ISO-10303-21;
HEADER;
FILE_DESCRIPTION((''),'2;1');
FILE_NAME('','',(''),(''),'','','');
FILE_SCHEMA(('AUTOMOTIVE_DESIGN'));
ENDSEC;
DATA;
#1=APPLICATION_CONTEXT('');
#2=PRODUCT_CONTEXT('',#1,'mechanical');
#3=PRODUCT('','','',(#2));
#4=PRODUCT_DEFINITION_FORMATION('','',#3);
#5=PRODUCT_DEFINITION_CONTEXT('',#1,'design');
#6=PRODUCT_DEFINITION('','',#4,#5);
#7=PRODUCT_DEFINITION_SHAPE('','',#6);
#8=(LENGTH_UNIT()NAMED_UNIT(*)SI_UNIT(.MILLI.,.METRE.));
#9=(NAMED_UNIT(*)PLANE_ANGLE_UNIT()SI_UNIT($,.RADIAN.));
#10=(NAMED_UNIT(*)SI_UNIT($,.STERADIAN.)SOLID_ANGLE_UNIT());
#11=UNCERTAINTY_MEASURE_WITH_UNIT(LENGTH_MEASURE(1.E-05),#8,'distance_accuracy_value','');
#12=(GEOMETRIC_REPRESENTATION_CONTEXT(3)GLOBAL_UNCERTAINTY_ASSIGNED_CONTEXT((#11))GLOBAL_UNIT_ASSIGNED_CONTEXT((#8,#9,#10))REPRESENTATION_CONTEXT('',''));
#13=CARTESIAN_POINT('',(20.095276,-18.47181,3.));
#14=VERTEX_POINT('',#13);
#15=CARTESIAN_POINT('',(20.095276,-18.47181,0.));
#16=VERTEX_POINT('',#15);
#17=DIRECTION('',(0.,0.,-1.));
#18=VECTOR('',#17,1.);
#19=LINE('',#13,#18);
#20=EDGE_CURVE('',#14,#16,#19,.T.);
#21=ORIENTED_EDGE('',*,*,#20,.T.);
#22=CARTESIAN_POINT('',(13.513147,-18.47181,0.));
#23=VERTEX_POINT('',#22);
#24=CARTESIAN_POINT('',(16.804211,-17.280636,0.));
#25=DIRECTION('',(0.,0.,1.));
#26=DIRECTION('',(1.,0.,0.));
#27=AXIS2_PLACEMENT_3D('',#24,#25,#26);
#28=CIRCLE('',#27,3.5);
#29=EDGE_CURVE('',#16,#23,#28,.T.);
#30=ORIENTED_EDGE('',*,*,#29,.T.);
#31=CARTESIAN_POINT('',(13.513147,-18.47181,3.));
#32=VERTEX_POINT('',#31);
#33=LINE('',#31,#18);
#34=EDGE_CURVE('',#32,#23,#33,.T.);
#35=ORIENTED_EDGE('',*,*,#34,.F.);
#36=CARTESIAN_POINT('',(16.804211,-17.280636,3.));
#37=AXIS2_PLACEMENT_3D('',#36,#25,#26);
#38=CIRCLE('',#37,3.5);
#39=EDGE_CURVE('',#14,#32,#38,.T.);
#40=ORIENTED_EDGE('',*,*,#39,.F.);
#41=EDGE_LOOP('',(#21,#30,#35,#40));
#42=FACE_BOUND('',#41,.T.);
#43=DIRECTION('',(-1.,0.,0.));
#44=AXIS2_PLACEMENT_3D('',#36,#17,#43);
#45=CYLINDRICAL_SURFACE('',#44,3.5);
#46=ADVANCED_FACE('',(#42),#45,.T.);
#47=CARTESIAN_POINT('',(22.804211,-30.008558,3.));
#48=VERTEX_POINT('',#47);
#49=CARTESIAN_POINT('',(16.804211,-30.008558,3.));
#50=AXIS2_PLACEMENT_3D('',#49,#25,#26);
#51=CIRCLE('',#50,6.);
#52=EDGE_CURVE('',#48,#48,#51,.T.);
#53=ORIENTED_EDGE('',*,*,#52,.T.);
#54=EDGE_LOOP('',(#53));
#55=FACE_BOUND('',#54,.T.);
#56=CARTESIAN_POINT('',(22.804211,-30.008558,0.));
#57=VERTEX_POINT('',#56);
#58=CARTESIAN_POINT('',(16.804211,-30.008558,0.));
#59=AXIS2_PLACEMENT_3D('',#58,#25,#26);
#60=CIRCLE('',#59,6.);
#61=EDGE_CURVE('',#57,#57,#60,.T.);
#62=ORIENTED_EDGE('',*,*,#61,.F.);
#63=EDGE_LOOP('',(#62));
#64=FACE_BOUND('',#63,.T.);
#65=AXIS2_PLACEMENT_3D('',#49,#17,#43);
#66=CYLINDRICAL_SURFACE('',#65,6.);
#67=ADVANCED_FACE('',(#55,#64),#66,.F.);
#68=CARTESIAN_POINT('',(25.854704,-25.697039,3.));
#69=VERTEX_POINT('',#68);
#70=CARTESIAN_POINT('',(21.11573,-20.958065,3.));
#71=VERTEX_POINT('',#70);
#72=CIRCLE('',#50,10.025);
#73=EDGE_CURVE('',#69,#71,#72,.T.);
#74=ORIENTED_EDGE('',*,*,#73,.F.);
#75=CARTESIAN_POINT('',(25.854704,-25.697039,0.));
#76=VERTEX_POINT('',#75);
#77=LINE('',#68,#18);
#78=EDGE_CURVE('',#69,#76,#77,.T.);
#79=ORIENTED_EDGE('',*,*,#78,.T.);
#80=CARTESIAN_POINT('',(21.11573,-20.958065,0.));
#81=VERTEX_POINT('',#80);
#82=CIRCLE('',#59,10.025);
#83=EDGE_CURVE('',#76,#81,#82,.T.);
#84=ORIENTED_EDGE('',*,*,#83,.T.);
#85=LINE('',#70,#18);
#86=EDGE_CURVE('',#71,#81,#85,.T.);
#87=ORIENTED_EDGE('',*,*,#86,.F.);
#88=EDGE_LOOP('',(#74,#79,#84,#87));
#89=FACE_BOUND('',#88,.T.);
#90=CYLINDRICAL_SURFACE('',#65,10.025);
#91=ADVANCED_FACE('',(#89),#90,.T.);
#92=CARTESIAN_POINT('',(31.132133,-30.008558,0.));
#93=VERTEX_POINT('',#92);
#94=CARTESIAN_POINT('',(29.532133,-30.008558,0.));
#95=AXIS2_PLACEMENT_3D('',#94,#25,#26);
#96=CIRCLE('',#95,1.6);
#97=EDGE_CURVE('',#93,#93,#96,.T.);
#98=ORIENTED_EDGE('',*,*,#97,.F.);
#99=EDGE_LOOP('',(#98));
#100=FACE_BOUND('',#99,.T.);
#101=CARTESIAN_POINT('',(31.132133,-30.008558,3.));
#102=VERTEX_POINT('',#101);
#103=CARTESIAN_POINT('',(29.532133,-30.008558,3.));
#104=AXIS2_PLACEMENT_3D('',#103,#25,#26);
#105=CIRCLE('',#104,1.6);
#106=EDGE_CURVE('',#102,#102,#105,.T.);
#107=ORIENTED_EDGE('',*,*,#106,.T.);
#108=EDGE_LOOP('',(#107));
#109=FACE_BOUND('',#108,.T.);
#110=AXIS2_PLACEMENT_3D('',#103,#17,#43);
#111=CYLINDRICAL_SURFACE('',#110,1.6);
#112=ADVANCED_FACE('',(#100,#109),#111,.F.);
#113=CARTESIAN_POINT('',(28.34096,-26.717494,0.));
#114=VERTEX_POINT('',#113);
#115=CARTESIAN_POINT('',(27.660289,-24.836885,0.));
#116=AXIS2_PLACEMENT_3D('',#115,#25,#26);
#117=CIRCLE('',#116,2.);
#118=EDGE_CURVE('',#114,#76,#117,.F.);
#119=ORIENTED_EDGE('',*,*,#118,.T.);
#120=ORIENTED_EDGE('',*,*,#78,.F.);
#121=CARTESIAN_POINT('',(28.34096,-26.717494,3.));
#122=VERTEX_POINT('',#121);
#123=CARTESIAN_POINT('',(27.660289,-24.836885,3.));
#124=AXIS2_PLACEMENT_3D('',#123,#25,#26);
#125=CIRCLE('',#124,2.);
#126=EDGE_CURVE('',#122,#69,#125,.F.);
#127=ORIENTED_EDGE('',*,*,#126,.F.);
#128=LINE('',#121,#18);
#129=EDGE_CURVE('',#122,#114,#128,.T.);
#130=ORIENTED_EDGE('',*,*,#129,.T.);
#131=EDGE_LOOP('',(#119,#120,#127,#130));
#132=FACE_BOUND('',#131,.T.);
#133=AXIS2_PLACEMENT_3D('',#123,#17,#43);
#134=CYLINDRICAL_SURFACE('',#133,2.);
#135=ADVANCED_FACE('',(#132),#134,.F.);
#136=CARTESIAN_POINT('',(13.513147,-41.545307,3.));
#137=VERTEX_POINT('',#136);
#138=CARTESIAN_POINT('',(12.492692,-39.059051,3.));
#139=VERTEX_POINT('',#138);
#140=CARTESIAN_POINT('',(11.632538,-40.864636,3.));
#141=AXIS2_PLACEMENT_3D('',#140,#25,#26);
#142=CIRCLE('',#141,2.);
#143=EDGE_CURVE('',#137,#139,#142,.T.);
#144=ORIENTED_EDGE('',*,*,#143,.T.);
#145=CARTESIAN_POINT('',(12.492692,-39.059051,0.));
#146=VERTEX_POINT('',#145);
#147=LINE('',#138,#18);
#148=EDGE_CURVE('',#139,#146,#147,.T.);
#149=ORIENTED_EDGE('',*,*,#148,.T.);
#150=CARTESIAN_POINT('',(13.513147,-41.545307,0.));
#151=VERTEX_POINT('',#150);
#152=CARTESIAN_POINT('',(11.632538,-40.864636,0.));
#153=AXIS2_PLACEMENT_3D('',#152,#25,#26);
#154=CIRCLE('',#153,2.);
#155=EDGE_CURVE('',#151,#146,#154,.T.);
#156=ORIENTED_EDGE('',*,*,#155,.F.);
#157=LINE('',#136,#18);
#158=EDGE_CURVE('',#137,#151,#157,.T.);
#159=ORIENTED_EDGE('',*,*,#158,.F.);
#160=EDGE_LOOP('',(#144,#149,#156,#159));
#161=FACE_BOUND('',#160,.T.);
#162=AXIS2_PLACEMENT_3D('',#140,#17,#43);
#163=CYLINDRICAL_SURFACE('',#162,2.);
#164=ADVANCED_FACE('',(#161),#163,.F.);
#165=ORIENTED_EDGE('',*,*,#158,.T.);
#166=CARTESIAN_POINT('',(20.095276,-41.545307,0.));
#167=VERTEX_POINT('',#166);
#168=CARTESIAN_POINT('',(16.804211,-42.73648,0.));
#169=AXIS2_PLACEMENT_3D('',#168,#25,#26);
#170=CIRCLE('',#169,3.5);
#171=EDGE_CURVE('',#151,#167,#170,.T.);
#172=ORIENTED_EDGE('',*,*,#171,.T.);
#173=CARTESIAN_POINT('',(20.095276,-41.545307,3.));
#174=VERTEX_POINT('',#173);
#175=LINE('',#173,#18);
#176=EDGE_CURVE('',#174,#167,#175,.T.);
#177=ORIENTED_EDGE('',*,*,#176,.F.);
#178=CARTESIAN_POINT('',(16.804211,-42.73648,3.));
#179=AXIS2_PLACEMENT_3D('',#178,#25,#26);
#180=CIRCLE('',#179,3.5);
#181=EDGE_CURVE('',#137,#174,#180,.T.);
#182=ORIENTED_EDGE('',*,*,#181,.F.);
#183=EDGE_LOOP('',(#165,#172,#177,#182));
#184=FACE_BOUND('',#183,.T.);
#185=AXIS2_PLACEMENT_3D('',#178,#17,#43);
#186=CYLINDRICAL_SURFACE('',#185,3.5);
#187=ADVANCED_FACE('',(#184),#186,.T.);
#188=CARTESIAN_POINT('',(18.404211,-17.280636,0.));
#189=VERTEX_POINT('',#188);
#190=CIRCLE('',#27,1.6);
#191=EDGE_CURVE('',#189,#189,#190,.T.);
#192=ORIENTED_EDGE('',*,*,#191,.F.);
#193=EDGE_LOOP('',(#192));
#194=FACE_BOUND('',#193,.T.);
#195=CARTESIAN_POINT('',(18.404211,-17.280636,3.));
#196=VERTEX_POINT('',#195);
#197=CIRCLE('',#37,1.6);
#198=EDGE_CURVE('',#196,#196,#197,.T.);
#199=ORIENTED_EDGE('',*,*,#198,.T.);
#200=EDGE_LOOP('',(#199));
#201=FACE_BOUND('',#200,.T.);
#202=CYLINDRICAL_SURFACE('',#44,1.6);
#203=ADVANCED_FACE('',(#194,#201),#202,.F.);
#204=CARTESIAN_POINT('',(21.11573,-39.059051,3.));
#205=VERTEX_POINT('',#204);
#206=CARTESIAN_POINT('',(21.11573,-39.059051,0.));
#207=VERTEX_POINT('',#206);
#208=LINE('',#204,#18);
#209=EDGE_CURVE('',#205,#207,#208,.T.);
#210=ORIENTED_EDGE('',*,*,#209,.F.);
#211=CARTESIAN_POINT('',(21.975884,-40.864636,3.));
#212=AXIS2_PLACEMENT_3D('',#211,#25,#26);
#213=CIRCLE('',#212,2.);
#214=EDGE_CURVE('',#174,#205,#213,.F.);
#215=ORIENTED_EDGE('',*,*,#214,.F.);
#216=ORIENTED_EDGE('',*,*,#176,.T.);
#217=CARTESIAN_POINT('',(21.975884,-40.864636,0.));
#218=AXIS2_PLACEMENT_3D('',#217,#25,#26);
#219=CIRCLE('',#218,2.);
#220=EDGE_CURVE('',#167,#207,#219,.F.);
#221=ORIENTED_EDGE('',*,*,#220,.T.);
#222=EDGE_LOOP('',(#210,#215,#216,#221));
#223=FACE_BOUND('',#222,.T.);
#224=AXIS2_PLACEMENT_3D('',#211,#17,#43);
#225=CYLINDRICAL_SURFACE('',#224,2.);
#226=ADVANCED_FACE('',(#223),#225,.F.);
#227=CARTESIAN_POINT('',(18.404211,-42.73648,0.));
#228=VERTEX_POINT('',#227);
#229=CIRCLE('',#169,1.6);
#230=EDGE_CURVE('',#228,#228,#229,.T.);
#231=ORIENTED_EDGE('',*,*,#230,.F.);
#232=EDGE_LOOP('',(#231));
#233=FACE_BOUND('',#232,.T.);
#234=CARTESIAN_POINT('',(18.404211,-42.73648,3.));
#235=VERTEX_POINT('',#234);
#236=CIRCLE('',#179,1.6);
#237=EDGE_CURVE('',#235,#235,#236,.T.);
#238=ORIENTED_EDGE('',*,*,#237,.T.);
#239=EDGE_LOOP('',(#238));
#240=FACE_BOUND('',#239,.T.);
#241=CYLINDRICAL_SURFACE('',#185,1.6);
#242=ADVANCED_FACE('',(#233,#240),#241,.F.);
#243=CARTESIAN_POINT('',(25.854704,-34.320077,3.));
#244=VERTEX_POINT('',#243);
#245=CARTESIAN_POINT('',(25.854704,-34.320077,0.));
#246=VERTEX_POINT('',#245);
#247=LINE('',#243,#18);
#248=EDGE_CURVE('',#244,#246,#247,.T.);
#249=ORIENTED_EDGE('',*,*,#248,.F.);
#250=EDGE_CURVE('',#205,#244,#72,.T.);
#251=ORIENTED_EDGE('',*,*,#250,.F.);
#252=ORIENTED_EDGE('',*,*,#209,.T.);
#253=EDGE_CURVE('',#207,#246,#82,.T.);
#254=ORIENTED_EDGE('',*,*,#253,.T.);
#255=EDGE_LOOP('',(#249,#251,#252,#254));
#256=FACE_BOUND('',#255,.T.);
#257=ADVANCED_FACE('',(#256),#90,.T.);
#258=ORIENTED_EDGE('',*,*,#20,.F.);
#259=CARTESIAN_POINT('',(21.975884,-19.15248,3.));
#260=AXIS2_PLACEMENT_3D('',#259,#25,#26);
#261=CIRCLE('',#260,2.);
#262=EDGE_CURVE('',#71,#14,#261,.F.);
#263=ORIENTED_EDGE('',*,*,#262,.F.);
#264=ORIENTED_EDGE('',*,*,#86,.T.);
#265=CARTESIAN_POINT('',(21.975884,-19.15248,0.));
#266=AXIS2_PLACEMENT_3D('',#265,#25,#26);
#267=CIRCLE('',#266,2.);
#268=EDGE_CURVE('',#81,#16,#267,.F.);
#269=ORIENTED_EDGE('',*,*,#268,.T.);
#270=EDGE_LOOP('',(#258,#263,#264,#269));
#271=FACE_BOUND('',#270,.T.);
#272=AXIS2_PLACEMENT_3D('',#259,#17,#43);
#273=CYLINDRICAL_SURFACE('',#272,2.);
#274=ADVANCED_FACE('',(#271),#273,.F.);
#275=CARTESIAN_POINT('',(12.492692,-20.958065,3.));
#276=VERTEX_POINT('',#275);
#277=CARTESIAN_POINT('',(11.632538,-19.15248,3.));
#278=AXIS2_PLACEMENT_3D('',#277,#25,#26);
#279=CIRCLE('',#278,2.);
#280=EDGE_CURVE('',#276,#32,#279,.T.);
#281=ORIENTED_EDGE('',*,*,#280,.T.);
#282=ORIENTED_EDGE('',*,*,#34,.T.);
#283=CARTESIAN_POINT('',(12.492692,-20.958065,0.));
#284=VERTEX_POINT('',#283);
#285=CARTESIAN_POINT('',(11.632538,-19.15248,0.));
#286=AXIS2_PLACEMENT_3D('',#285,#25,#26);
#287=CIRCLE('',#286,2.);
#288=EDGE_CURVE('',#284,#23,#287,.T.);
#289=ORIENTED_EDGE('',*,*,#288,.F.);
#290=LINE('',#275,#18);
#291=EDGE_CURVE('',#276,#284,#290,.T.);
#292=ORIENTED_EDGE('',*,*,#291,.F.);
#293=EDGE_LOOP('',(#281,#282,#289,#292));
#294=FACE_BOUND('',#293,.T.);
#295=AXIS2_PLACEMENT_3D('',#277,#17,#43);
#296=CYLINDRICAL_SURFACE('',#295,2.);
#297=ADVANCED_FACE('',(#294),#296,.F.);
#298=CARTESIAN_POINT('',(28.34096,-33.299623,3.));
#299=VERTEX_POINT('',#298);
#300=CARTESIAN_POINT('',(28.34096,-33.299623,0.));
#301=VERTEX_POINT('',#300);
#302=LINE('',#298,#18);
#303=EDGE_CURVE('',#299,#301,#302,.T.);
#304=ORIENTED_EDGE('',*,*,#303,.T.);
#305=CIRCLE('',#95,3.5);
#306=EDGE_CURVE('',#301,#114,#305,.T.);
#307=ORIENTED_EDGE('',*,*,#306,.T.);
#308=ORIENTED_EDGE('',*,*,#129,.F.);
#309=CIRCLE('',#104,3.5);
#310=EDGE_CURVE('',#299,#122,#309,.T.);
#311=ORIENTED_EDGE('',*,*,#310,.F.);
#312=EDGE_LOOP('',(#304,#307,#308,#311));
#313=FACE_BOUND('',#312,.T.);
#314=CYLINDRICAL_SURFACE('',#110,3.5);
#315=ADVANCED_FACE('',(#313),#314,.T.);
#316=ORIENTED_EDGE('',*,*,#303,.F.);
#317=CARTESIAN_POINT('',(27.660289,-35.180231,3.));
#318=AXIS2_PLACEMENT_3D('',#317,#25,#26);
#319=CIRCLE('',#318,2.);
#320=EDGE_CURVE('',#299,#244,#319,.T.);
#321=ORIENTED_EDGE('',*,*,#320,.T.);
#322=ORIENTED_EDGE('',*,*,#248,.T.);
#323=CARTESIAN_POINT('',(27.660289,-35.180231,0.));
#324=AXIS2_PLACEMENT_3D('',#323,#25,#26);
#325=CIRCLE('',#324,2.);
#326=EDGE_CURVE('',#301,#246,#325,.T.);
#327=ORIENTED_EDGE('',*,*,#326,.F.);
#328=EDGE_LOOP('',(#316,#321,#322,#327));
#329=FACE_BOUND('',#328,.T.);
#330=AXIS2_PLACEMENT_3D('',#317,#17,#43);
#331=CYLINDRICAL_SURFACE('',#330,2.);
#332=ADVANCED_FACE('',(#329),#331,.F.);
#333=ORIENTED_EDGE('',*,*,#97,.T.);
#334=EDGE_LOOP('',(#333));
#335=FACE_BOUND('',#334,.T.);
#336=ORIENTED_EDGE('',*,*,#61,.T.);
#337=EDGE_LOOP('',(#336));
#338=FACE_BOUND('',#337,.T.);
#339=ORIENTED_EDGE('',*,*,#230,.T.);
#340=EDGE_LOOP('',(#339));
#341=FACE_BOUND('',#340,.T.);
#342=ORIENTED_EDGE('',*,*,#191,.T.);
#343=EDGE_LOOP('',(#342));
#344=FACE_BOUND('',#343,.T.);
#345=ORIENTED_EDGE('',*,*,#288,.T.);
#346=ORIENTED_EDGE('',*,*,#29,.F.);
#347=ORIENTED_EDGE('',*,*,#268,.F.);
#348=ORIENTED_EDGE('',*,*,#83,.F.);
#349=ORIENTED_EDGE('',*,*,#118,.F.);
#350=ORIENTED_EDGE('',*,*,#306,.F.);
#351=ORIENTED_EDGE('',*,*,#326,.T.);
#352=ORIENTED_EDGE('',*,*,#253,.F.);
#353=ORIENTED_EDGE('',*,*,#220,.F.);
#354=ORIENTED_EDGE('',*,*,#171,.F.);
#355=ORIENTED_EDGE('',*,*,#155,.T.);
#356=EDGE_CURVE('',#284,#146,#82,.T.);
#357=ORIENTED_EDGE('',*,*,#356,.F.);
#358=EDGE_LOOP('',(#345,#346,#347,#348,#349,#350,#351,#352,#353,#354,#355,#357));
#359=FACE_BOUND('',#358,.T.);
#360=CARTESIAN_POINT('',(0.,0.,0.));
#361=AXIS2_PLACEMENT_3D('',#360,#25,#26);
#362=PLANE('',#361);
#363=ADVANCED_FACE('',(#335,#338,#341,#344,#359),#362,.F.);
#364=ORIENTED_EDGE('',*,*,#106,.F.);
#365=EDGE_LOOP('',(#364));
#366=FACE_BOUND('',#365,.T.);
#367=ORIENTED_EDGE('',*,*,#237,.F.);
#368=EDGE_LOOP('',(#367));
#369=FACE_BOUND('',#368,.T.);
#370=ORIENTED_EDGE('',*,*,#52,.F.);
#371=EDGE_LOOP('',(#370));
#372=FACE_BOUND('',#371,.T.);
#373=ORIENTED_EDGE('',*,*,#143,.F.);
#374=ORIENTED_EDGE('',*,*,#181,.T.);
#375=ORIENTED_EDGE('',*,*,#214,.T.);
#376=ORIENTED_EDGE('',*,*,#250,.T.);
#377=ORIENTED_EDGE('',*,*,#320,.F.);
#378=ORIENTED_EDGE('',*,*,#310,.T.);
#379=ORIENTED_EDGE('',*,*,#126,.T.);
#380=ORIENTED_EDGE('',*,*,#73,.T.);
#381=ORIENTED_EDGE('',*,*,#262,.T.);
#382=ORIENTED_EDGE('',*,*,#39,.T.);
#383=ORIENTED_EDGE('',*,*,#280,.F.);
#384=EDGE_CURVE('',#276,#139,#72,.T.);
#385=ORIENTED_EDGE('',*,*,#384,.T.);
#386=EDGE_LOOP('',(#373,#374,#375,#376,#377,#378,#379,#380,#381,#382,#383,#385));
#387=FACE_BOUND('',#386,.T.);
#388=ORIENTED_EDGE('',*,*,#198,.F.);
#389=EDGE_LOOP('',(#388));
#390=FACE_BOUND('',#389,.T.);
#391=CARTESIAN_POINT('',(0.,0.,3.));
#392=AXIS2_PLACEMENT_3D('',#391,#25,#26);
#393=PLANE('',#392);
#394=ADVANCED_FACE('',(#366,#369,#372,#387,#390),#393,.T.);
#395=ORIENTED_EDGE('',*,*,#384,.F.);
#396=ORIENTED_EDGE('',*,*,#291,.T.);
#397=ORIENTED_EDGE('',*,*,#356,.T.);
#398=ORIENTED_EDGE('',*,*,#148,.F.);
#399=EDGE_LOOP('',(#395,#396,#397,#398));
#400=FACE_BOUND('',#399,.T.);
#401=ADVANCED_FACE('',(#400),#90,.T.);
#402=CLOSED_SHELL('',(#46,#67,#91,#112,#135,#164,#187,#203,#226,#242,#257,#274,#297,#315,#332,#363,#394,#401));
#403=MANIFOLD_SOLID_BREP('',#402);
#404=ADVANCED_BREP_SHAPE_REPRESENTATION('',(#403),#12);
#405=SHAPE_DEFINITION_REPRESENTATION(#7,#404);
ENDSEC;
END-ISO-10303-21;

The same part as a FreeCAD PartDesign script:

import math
import FreeCAD as App
import Part
import Sketcher
from FreeCAD import Vector
Q = App.Units.Quantity

doc = App.newDocument("Part")
params = doc.addObject("Spreadsheet::Sheet", "Params")
for row, (alias, value) in enumerate([
    ("sketch1_diameter", "12 mm"),
    ("sketch1_radius", "2 mm"),
    ("sketch1_diameter2", "3.2 mm"),
    ("sketch1_radius2", "3.5 mm"),
    ("pad1_length", "3 mm"),
], start=1):
    params.set(f"A{row}", alias)
    params.set(f"B{row}", "=" + value)
    params.setAlias(f"B{row}", alias)

body = doc.addObject("PartDesign::Body", "Body")

sketch1 = body.newObject("Sketcher::SketchObject", "Sketch")
sketch1.AttachmentSupport = (doc.getObject("XY_Plane"), [""])
sketch1.MapMode = "FlatFace"
sketch1.addGeometry([
    Part.ArcOfCircle(Part.Circle(Vector(16.8, -42.7, 0), Vector(0, 0, 1), 3.5), math.radians(160), math.radians(380)),
    Part.ArcOfCircle(Part.Circle(Vector(22, -40.9, 0), Vector(0, 0, 1), 2), math.radians(115), math.radians(200)),
    Part.ArcOfCircle(Part.Circle(Vector(16.8, -30, 0), Vector(0, 0, 1), 10), math.radians(-65), math.radians(-25)),
    Part.ArcOfCircle(Part.Circle(Vector(27.7, -35.2, 0), Vector(0, 0, 1), 2), math.radians(70), math.radians(155)),
    Part.ArcOfCircle(Part.Circle(Vector(29.5, -30, 0), Vector(0, 0, 1), 3.5), math.radians(-110), math.radians(110)),
    Part.ArcOfCircle(Part.Circle(Vector(27.7, -24.8, 0), Vector(0, 0, 1), 2), math.radians(-155), math.radians(-70)),
    Part.ArcOfCircle(Part.Circle(Vector(16.8, -30, 0), Vector(0, 0, 1), 10), math.radians(25), math.radians(65)),
    Part.ArcOfCircle(Part.Circle(Vector(22, -19.2, 0), Vector(0, 0, 1), 2), math.radians(160), math.radians(245)),
    Part.ArcOfCircle(Part.Circle(Vector(16.8, -17.3, 0), Vector(0, 0, 1), 3.5), math.radians(-20), math.radians(200)),
    Part.ArcOfCircle(Part.Circle(Vector(11.6, -19.2, 0), Vector(0, 0, 1), 2), math.radians(-65), math.radians(20)),
    Part.ArcOfCircle(Part.Circle(Vector(16.8, -30, 0), Vector(0, 0, 1), 10), math.radians(115), math.radians(245)),
    Part.ArcOfCircle(Part.Circle(Vector(11.6, -40.9, 0), Vector(0, 0, 1), 2), math.radians(-20), math.radians(65)),
    Part.Circle(Vector(16.8, -42.7, 0), Vector(0, 0, 1), 1.6),
    Part.Circle(Vector(16.8, -30, 0), Vector(0, 0, 1), 6),
    Part.Circle(Vector(16.8, -17.3, 0), Vector(0, 0, 1), 1.6),
    Part.Circle(Vector(29.5, -30, 0), Vector(0, 0, 1), 1.6),
], False)
sketch1.addConstraint([
    Sketcher.Constraint("Tangent", 0, 2, 1, 2),
    Sketcher.Constraint("Tangent", 1, 1, 2, 1),
    Sketcher.Constraint("Tangent", 2, 2, 3, 2),
    Sketcher.Constraint("Tangent", 3, 1, 4, 1),
    Sketcher.Constraint("Tangent", 4, 2, 5, 2),
    Sketcher.Constraint("Tangent", 5, 1, 6, 1),
    Sketcher.Constraint("Tangent", 6, 2, 7, 2),
    Sketcher.Constraint("Tangent", 7, 1, 8, 1),
    Sketcher.Constraint("Tangent", 8, 2, 9, 2),
    Sketcher.Constraint("Tangent", 9, 1, 10, 1),
    Sketcher.Constraint("Tangent", 10, 2, 11, 2),
    Sketcher.Constraint("Tangent", 11, 1, 0, 1),
    Sketcher.Constraint("Coincident", 6, 3, 2, 3),
    Sketcher.Constraint("Coincident", 10, 3, 2, 3),
    Sketcher.Constraint("Coincident", 12, 3, 0, 3),
    Sketcher.Constraint("Coincident", 13, 3, 2, 3),
    Sketcher.Constraint("Coincident", 14, 3, 8, 3),
    Sketcher.Constraint("Coincident", 15, 3, 4, 3),
    Sketcher.Constraint("Equal", 1, 3),
    Sketcher.Constraint("Equal", 0, 4),
    Sketcher.Constraint("Equal", 3, 5),
    Sketcher.Constraint("Equal", 2, 6),
    Sketcher.Constraint("Equal", 5, 7),
    Sketcher.Constraint("Equal", 4, 8),
    Sketcher.Constraint("Equal", 7, 9),
    Sketcher.Constraint("Equal", 6, 10),
    Sketcher.Constraint("Equal", 9, 11),
    Sketcher.Constraint("Equal", 12, 14),
    Sketcher.Constraint("Equal", 14, 15),
    Sketcher.Constraint("Horizontal", 2, 3, 4, 3),
    Sketcher.Constraint("Horizontal", 7, 3, 9, 3),
    Sketcher.Constraint("Horizontal", 1, 3, 11, 3),
    Sketcher.Constraint("Vertical", 1, 3, 7, 3),
    Sketcher.Constraint("Diameter", 13, Q("12 mm")),
    Sketcher.Constraint("Radius", 1, Q("2 mm")),
    Sketcher.Constraint("Diameter", 12, Q("3.2 mm")),
    Sketcher.Constraint("Radius", 0, Q("3.5 mm")),
    Sketcher.Constraint("Radius", 2, Q("10.025 mm")),
    Sketcher.Constraint("DistanceX", -1, 1, 0, 3, Q("16.804211 mm")),
    Sketcher.Constraint("DistanceY", 0, 3, -1, 1, Q("42.73648 mm")),
    Sketcher.Constraint("DistanceY", 2, 3, -1, 1, Q("30.008558 mm")),
    Sketcher.Constraint("DistanceX", -1, 1, 3, 3, Q("27.660289 mm")),
])
sketch1.setExpression("Constraints[33]", "Params.sketch1_diameter")
sketch1.setExpression("Constraints[34]", "Params.sketch1_radius")
sketch1.setExpression("Constraints[35]", "Params.sketch1_diameter2")
sketch1.setExpression("Constraints[36]", "Params.sketch1_radius2")
pad1 = body.newObject("PartDesign::Pad", "Pad")
pad1.Profile = sketch1
pad1.setExpression("Length", "Params.pad1_length")

doc.recompute()
